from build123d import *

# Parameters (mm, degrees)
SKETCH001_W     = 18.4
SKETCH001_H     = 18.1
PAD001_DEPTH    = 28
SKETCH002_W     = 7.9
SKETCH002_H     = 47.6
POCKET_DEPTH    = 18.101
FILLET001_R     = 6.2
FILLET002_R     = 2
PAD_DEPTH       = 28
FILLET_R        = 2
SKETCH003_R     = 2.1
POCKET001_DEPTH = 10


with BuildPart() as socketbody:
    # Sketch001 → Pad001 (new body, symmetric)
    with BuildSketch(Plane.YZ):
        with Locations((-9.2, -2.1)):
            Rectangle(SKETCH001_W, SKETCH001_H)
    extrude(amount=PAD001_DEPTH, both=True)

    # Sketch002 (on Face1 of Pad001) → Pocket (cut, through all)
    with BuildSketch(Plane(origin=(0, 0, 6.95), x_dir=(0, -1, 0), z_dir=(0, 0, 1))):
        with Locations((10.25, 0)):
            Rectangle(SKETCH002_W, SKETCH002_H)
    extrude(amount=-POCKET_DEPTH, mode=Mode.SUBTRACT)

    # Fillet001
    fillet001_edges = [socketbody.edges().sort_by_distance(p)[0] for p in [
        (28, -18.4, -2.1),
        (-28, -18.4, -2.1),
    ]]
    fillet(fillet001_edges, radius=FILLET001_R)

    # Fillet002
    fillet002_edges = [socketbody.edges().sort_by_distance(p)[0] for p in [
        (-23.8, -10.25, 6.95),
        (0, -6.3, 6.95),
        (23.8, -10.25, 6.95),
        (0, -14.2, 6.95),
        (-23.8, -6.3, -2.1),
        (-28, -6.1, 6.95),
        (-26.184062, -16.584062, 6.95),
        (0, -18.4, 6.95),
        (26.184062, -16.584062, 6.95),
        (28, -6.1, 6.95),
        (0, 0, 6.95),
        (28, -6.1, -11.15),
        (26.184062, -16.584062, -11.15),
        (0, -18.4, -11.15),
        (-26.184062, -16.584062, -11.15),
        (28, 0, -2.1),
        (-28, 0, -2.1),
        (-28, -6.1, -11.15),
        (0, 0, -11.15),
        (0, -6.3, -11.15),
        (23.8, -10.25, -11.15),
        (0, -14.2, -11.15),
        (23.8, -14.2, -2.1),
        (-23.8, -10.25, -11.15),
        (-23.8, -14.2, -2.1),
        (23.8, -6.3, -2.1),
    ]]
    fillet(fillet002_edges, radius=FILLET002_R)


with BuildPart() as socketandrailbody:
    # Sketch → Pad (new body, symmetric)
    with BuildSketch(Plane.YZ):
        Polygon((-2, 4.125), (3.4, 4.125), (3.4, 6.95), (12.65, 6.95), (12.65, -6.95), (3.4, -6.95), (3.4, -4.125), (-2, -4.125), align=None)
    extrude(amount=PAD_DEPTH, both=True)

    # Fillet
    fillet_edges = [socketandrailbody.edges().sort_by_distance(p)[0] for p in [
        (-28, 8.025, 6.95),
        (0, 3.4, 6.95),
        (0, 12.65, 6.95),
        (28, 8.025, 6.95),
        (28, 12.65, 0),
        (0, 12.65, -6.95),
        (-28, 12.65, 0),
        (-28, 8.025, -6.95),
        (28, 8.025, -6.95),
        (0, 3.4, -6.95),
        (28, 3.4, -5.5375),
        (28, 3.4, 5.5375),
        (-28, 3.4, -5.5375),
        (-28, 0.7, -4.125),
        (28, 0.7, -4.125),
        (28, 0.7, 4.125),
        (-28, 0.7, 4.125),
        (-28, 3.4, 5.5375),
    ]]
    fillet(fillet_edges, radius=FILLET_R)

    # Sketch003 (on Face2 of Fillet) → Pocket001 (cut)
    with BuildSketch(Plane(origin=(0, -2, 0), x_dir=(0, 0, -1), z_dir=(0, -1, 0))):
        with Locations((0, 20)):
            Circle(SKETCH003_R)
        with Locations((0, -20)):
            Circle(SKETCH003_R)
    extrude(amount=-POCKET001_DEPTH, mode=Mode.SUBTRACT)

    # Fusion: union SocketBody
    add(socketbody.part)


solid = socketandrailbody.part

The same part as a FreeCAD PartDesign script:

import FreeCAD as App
import Part
import Sketcher


def edges_at(feature, points):
    """Names of the edges that pass closest to the given points."""
    edges = feature.Shape.Edges
    near = lambda p: min(range(len(edges)), key=lambda i: edges[i].distToShape(Part.Vertex(*p))[0])
    return sorted({f"Edge{near(p) + 1}" for p in points})


def add_polygon(sketch, points):
    """Adds a closed chain of lines whose ends are joined by coincident constraints."""
    first, n = sketch.GeometryCount, len(points)
    for a, b in zip(points, points[1:] + points[:1]):
        sketch.addGeometry(Part.LineSegment(App.Vector(*a, 0), App.Vector(*b, 0)), False)
    for i in range(n):
        sketch.addConstraint(Sketcher.Constraint("Coincident", first + i, 2, first + (i + 1) % n, 1))

doc = App.newDocument("Part")
body = doc.addObject("PartDesign::Body", "Body")

# Sketch on YZ plane
sketch1 = doc.addObject("Sketcher::SketchObject", "Sketch")
body.addObject(sketch1)
sketch1.AttachmentSupport = (doc.YZ_Plane, [""])
sketch1.MapMode = "FlatFace"
add_polygon(sketch1, [(-18.4, 6.95), (-18.4, -11.15), (0, -11.15), (0, 6.95)])  # lines 0-3
sketch1.addConstraint(Sketcher.Constraint("Vertical", 0))
sketch1.addConstraint(Sketcher.Constraint("Horizontal", 1))
sketch1.addConstraint(Sketcher.Constraint("Vertical", 2))
sketch1.addConstraint(Sketcher.Constraint("Horizontal", 3))
sketch1.addConstraint(Sketcher.Constraint("PointOnObject", 1, 2, -2))
sketch1.addConstraint(Sketcher.Constraint("DistanceX", 1, 1, 1, 2, 18.4))
sketch1.addConstraint(Sketcher.Constraint("DistanceY", 0, 2, 0, 1, 18.1))
sketch1.addConstraint(Sketcher.Constraint("DistanceY", 0, 2, -1, 1, 11.15))
pad1 = doc.addObject("PartDesign::Pad", "Pad")
body.addObject(pad1)
pad1.Profile = sketch1
pad1.Length = 56
pad1.Midplane = True

# Sketch on XY plane
sketch2 = doc.addObject("Sketcher::SketchObject", "Sketch001")
body.addObject(sketch2)
sketch2.AttachmentSupport = (doc.XY_Plane, [""])
sketch2.MapMode = "FlatFace"
sketch2.AttachmentOffset = App.Placement(App.Vector(0, 0, 6.95), App.Rotation())
add_polygon(sketch2, [(23.8, -6.3), (-23.8, -6.3), (-23.8, -14.2), (23.8, -14.2)])  # lines 0-3
sketch2.addConstraint(Sketcher.Constraint("Horizontal", 0))
sketch2.addConstraint(Sketcher.Constraint("Vertical", 1))
sketch2.addConstraint(Sketcher.Constraint("Horizontal", 2))
sketch2.addConstraint(Sketcher.Constraint("Vertical", 3))
sketch2.addConstraint(Sketcher.Constraint("DistanceX", 0, 2, 0, 1, 47.6))
sketch2.addConstraint(Sketcher.Constraint("DistanceY", 1, 2, 1, 1, 7.9))
sketch2.addConstraint(Sketcher.Constraint("DistanceX", 0, 2, -1, 1, 23.8))
sketch2.addConstraint(Sketcher.Constraint("DistanceY", 0, 2, -1, 1, 6.3))
pocket1 = doc.addObject("PartDesign::Pocket", "Pocket")
body.addObject(pocket1)
pocket1.Profile = sketch2
pocket1.Type = "ThroughAll"
doc.recompute()

fillet = doc.addObject("PartDesign::Fillet", "Fillet")
body.addObject(fillet)
fillet.Base = (pocket1, edges_at(pocket1, [(28, -18.4, -2.1), (-28, -18.4, -2.1)]))
fillet.Radius = 6.2
doc.recompute()

fillet2 = doc.addObject("PartDesign::Fillet", "Fillet001")
body.addObject(fillet2)
fillet2.Base = (fillet, ["Edge1"])
fillet2.UseAllEdges = True
fillet2.Radius = 2
body2 = doc.addObject("PartDesign::Body", "Body001")

# Sketch on YZ plane
sketch3 = doc.addObject("Sketcher::SketchObject", "Sketch002")
body2.addObject(sketch3)
sketch3.AttachmentSupport = (doc.getObject("YZ_Plane001"), [""])
sketch3.MapMode = "FlatFace"
add_polygon(sketch3, [(3.4, 4.125), (-2, 4.125), (-2, -4.125), (3.4, -4.125), (3.4, -6.95), (12.65, -6.95), (12.65, 6.95), (3.4, 6.95)])  # lines 0-7
sketch3.addConstraint(Sketcher.Constraint("Horizontal", 0))
sketch3.addConstraint(Sketcher.Constraint("Vertical", 1))
sketch3.addConstraint(Sketcher.Constraint("Horizontal", 2))
sketch3.addConstraint(Sketcher.Constraint("Vertical", 3))
sketch3.addConstraint(Sketcher.Constraint("Horizontal", 4))
sketch3.addConstraint(Sketcher.Constraint("Vertical", 5))
sketch3.addConstraint(Sketcher.Constraint("Horizontal", 6))
sketch3.addConstraint(Sketcher.Constraint("Vertical", 7))
sketch3.addConstraint(Sketcher.Constraint("Symmetric", 3, 2, 6, 2, -1))
sketch3.addConstraint(Sketcher.Constraint("Equal", 3, 7))
sketch3.addConstraint(Sketcher.Constraint("DistanceX", 0, 2, 0, 1, 5.4))
sketch3.addConstraint(Sketcher.Constraint("DistanceY", 5, 1, 5, 2, 13.9))
sketch3.addConstraint(Sketcher.Constraint("DistanceX", 0, 2, -1, 1, 2.0))
sketch3.addConstraint(Sketcher.Constraint("DistanceX", 4, 1, 4, 2, 9.25))
sketch3.addConstraint(Sketcher.Constraint("DistanceY", 1, 2, 1, 1, 8.25))
pad2 = doc.addObject("PartDesign::Pad", "Pad001")
body2.addObject(pad2)
pad2.Profile = sketch3
pad2.Length = 56
pad2.Midplane = True
doc.recompute()

fillet3 = doc.addObject("PartDesign::Fillet", "Fillet002")
body2.addObject(fillet3)
fillet3.Base = (pad2, edges_at(pad2, [
    (-28, 8.025, 6.95),
    (0, 3.4, 6.95),
    (0, 12.65, 6.95),
    (28, 8.025, 6.95),
    (28, 12.65, 0),
    (0, 12.65, -6.95),
    (-28, 12.65, 0),
    (-28, 8.025, -6.95),
    (28, 8.025, -6.95),
    (0, 3.4, -6.95),
    (28, 3.4, -5.537),
    (28, 3.4, 5.537),
    (-28, 3.4, -5.537),
    (-28, 0.7, -4.125),
    (28, 0.7, -4.125),
    (28, 0.7, 4.125),
    (-28, 0.7, 4.125),
    (-28, 3.4, 5.537),
]))
fillet3.Radius = 2

# Sketch on XZ plane
sketch4 = doc.addObject("Sketcher::SketchObject", "Sketch003")
body2.addObject(sketch4)
sketch4.AttachmentSupport = (doc.getObject("XZ_Plane001"), [""])
sketch4.MapMode = "FlatFace"
sketch4.AttachmentOffset = App.Placement(App.Vector(0, 0, 2), App.Rotation())
sketch4.addGeometry(Part.Circle(App.Vector(20, 0, 0), App.Vector(0, 0, 1), 2.1), False)
sketch4.addGeometry(Part.Circle(App.Vector(-20, 0, 0), App.Vector(0, 0, 1), 2.1), False)
sketch4.addConstraint(Sketcher.Constraint("Equal", 0, 1))
sketch4.addConstraint(Sketcher.Constraint("Symmetric", 0, 3, 1, 3, -1, 1))
sketch4.addConstraint(Sketcher.Constraint("PointOnObject", 0, 3, -1))
sketch4.addConstraint(Sketcher.Constraint("Diameter", 0, 4.2))
sketch4.addConstraint(Sketcher.Constraint("DistanceX", -1, 1, 0, 3, 20.0))
pocket2 = doc.addObject("PartDesign::Pocket", "Pocket001")
body2.addObject(pocket2)
pocket2.Profile = sketch4
pocket2.Length = 10
doc.recompute()

boolean = doc.addObject("PartDesign::Boolean", "Boolean")
body2.addObject(boolean)
boolean.Type = "Fuse"
boolean.addObjects([body])

doc.recompute()
